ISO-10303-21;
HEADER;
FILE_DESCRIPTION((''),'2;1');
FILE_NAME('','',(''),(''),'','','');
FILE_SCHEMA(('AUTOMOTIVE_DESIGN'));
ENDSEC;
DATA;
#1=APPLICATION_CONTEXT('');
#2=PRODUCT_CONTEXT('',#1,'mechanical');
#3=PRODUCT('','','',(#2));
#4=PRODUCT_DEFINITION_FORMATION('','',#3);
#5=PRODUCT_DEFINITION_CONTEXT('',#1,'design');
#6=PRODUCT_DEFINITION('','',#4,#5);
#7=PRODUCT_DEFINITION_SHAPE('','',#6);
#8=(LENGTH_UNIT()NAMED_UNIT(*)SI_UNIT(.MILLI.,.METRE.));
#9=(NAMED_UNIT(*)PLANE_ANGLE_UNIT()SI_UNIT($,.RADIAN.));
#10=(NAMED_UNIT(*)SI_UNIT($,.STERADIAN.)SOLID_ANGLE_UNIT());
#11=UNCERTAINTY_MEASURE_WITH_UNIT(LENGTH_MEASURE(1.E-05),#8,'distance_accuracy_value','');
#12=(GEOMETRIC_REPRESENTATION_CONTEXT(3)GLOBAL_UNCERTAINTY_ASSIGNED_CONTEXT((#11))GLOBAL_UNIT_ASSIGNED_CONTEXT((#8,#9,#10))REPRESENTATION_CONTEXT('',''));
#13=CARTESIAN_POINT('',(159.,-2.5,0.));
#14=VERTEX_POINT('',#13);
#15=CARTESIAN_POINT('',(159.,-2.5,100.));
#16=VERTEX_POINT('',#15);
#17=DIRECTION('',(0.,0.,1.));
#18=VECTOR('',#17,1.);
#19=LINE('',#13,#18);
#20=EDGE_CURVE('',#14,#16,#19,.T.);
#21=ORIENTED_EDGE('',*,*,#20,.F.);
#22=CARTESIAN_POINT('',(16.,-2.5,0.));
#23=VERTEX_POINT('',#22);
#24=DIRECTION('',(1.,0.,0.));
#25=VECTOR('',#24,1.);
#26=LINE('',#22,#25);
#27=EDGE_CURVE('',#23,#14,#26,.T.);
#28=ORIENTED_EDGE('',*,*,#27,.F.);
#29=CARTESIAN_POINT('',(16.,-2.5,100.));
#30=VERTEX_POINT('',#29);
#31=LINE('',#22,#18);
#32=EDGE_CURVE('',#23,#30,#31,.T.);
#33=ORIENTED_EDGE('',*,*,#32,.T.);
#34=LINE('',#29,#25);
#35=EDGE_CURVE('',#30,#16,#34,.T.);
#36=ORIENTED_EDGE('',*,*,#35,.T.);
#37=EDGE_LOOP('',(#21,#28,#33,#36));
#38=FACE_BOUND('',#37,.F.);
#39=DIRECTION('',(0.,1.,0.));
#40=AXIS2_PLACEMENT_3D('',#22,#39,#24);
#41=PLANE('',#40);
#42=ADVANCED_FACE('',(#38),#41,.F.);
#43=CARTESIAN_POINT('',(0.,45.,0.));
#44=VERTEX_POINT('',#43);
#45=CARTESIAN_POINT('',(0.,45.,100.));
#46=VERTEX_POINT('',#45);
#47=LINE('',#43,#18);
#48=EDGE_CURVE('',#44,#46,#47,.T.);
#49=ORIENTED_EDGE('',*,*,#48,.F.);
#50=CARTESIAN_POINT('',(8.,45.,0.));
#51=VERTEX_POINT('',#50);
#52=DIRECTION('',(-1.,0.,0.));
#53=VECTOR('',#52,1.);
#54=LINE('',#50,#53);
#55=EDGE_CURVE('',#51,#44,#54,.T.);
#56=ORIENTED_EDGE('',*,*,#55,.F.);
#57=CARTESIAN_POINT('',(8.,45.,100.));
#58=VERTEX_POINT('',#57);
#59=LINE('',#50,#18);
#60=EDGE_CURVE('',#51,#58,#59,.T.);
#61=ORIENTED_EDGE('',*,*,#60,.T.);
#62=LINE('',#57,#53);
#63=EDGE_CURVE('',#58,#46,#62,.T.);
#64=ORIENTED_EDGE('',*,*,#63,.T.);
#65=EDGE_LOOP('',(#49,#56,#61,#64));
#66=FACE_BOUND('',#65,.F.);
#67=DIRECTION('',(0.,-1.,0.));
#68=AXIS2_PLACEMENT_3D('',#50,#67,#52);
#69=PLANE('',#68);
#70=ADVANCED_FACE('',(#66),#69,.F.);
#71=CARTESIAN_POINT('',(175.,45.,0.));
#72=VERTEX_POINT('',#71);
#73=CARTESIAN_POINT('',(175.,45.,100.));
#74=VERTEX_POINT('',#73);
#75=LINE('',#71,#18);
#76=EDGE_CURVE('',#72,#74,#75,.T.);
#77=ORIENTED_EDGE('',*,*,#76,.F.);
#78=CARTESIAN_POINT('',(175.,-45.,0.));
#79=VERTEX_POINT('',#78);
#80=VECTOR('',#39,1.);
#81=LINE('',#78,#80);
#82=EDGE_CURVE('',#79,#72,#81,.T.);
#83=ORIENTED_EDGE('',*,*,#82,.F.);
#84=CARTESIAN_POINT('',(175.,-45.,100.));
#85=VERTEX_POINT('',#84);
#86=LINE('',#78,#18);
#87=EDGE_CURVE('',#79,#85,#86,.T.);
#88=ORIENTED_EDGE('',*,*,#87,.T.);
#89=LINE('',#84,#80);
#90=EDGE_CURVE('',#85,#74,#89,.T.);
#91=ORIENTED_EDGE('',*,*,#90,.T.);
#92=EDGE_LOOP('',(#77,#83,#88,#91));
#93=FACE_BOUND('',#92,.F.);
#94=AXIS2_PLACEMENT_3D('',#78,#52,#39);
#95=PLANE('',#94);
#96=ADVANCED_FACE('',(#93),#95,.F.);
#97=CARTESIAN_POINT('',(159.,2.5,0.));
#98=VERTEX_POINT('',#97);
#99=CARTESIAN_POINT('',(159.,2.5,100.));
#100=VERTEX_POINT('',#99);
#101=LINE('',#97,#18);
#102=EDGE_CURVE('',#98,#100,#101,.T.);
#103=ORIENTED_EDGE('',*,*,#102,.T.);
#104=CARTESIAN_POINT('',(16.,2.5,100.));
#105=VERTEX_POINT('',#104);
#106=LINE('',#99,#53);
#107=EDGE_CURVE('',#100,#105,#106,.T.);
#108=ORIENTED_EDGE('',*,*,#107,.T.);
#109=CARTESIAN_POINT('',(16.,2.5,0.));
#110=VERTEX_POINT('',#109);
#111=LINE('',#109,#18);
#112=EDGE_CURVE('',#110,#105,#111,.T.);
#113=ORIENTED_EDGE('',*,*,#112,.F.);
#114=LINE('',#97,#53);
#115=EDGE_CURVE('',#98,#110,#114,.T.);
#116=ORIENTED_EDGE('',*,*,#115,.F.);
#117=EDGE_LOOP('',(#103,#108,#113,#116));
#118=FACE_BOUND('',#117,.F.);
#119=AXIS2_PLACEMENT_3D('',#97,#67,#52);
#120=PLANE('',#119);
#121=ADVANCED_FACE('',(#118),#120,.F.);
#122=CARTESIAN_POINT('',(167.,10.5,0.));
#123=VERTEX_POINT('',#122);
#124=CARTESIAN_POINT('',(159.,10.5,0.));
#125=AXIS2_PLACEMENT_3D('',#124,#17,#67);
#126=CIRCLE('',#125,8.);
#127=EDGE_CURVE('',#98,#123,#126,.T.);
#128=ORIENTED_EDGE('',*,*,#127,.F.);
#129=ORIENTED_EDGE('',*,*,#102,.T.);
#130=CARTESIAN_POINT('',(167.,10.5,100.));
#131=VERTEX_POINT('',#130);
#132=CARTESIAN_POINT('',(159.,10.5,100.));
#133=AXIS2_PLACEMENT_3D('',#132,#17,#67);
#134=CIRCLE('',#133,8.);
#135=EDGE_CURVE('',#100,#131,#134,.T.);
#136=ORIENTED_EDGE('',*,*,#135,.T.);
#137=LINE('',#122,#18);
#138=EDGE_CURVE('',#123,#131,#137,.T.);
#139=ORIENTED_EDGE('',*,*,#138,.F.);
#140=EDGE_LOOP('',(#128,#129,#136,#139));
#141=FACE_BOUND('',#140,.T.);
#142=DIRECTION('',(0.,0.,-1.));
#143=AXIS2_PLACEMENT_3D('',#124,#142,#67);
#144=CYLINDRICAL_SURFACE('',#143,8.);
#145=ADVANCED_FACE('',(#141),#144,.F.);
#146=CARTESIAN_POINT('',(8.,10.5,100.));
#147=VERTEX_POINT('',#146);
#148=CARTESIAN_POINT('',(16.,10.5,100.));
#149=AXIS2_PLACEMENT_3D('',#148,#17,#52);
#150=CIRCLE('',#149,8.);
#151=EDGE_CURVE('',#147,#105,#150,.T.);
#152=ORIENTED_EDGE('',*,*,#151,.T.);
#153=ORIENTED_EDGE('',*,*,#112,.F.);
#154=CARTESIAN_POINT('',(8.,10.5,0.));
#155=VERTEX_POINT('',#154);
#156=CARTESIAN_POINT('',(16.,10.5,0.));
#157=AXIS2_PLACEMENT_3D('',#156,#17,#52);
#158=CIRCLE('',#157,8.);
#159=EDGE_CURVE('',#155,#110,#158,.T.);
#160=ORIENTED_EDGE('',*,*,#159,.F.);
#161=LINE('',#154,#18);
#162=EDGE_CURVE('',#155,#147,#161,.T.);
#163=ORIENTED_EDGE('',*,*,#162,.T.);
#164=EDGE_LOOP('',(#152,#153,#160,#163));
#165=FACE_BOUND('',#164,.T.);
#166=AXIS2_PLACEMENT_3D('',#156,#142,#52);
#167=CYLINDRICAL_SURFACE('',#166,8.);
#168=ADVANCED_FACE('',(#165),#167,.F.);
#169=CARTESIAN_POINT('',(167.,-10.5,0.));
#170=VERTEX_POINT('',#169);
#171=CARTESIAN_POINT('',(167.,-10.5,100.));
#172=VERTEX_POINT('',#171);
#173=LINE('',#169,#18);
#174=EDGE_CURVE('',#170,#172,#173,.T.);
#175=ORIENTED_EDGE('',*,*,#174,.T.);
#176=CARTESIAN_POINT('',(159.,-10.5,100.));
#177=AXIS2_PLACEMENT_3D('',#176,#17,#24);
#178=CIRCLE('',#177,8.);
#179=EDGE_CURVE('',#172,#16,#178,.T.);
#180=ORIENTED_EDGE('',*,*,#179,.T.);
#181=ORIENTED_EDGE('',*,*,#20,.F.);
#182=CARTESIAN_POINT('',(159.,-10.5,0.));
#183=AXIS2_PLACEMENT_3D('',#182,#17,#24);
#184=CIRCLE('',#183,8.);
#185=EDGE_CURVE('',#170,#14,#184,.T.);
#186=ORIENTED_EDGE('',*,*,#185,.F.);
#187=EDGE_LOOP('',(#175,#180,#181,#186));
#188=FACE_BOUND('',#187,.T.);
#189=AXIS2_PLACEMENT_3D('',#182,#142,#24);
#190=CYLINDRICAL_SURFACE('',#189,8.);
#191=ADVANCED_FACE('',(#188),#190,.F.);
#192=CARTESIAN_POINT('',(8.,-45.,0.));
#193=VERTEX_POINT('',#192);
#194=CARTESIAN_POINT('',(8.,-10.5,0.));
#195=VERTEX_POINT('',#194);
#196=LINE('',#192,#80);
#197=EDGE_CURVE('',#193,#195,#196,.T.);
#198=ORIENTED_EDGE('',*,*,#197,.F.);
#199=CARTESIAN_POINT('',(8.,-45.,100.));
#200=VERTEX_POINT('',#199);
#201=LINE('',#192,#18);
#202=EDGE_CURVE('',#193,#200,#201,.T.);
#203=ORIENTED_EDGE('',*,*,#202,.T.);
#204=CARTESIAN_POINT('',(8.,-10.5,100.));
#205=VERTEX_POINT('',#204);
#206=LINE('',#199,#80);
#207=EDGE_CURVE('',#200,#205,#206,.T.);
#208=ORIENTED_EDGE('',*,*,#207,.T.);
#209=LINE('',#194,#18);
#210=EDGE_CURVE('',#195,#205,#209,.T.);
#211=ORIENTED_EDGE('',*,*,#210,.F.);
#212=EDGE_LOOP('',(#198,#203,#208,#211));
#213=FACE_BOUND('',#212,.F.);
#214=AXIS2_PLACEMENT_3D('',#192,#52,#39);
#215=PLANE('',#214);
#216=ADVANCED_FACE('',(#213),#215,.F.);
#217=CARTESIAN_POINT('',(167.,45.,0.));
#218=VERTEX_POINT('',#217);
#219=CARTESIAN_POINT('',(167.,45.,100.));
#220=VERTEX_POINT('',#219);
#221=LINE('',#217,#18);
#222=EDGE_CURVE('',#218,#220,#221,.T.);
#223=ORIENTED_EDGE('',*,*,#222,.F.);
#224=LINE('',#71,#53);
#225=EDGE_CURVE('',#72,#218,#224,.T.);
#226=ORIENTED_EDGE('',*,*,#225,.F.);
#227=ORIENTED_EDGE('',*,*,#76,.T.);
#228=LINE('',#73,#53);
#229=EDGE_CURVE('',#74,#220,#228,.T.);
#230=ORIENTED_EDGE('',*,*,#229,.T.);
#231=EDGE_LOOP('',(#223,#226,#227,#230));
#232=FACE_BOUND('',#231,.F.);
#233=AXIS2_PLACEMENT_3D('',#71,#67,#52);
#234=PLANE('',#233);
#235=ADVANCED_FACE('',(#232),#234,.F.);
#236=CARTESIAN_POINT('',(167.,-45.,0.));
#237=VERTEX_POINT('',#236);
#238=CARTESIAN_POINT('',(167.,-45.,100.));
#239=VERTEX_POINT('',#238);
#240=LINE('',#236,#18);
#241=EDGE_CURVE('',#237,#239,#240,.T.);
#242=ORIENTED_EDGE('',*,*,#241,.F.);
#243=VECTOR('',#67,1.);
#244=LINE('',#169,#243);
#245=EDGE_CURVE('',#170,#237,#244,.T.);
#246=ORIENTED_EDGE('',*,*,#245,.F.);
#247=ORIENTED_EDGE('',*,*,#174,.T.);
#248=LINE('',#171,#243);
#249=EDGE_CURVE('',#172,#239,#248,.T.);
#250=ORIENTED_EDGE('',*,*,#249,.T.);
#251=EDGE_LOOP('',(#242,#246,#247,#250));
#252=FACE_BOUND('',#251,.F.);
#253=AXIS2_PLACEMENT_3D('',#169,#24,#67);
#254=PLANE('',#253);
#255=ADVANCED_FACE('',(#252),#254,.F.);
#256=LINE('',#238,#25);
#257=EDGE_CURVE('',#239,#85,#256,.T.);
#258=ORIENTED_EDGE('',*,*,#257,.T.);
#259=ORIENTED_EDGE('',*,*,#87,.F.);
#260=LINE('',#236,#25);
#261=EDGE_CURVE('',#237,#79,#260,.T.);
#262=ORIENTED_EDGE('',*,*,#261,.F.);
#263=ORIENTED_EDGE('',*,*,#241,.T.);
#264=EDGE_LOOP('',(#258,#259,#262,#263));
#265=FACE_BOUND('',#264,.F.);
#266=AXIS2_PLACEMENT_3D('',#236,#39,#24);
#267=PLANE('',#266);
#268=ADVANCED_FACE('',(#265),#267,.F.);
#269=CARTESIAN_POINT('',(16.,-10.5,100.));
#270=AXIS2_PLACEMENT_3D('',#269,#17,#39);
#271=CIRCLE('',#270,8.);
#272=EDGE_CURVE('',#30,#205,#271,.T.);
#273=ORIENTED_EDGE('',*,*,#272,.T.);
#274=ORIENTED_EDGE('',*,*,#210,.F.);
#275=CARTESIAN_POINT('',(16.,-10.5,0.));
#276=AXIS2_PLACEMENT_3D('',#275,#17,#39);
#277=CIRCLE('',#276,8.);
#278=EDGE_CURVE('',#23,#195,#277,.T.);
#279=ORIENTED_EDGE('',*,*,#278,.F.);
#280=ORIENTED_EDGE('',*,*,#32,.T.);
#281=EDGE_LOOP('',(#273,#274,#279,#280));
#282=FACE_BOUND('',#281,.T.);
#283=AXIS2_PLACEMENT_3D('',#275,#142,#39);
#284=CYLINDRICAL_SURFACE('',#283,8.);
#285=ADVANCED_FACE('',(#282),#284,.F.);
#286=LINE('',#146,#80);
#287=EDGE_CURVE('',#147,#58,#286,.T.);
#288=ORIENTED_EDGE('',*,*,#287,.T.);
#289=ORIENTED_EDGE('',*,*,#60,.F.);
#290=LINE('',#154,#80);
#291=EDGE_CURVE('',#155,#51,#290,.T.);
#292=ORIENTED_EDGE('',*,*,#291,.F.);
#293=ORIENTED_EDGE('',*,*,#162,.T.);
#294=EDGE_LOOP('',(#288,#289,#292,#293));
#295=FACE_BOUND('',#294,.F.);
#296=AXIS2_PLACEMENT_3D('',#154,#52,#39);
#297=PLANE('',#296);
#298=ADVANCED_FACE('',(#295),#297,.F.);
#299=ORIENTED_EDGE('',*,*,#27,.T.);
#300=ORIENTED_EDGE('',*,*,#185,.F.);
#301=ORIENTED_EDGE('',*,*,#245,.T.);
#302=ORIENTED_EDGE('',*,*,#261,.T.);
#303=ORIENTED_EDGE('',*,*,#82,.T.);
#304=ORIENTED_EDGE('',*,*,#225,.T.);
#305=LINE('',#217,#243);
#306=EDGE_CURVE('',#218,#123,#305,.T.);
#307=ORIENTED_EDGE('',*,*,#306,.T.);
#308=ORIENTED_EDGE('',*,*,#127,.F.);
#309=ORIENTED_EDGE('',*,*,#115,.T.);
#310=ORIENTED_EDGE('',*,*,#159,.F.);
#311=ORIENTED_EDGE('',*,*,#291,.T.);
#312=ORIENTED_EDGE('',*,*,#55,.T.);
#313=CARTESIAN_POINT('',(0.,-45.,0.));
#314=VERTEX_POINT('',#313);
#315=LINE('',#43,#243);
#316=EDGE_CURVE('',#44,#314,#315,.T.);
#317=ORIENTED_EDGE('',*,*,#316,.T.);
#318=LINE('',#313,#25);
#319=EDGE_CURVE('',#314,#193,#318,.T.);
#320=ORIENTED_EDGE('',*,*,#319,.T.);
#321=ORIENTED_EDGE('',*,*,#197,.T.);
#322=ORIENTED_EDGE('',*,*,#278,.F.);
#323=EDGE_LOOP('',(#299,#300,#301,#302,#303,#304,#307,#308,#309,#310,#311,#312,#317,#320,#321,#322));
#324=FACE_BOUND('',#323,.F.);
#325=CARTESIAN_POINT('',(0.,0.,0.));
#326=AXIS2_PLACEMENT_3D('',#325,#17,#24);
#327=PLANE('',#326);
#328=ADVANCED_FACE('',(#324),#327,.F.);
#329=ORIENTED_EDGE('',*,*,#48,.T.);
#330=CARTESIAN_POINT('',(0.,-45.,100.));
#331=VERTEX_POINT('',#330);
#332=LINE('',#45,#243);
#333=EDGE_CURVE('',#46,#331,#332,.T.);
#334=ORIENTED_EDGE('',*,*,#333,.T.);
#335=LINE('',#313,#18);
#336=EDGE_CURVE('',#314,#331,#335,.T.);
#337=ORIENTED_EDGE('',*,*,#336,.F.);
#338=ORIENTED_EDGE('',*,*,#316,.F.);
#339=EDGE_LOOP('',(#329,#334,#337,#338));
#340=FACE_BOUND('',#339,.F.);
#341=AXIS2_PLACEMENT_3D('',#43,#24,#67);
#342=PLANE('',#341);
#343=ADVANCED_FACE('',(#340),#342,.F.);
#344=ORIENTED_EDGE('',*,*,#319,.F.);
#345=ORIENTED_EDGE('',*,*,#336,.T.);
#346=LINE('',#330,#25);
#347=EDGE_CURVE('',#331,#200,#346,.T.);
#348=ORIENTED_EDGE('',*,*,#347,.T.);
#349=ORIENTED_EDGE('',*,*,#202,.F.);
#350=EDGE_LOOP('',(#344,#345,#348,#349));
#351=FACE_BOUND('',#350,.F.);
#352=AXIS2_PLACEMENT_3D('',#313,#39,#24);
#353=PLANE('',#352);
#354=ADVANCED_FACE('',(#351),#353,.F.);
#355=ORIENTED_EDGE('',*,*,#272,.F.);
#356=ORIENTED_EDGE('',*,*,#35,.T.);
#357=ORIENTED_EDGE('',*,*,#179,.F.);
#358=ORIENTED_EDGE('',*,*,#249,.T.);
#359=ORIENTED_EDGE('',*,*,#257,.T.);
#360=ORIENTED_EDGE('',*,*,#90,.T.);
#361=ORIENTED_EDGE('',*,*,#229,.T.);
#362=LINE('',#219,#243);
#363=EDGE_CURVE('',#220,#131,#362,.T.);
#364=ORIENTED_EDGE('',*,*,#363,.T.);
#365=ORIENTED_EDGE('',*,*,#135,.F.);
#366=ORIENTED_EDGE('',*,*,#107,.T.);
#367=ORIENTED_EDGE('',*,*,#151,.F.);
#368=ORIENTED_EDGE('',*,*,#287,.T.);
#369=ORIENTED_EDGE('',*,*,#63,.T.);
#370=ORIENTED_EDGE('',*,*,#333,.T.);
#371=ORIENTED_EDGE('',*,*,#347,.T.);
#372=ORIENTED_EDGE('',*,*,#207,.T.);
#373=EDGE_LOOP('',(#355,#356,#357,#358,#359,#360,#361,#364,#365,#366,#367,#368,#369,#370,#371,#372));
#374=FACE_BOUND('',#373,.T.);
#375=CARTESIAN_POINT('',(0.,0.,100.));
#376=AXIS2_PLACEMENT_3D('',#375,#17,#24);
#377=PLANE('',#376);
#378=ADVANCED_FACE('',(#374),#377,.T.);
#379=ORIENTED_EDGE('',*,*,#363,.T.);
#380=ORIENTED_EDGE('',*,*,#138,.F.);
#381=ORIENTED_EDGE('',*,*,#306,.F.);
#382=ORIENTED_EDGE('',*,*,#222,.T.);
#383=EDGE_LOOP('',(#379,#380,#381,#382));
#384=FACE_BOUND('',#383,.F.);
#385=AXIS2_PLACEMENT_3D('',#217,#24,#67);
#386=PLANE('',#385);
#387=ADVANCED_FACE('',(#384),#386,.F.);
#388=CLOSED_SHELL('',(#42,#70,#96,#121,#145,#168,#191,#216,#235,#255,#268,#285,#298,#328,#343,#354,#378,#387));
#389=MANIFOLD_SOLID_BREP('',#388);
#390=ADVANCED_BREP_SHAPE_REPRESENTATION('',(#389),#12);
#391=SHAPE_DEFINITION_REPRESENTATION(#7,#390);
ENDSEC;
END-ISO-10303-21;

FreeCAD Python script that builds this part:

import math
import FreeCAD as App
import Part
import Sketcher
Q = App.Units.Quantity

doc = App.newDocument("Part")
body = doc.addObject("PartDesign::Body", "Body")

sketch1 = doc.addObject("Sketcher::SketchObject", "Sketch")
body.addObject(sketch1)
sketch1.AttachmentSupport = (doc.XY_Plane, [""])
sketch1.MapMode = "FlatFace"
sketch1.addGeometry([
    Part.ArcOfCircle(Part.Circle(App.Vector(159, 10, 0), App.Vector(0, 0, 1), 8), math.radians(-90), math.radians(0)),
    Part.LineSegment(App.Vector(159, 2, 0), App.Vector(16, 2, 0)),
    Part.ArcOfCircle(Part.Circle(App.Vector(16, 10, 0), App.Vector(0, 0, 1), 8), math.radians(180), math.radians(270)),
    Part.LineSegment(App.Vector(8, 10, 0), App.Vector(8, 45, 0)),
    Part.LineSegment(App.Vector(8, 45, 0), App.Vector(0, 45, 0)),
    Part.LineSegment(App.Vector(0, 45, 0), App.Vector(0, -45, 0)),
    Part.LineSegment(App.Vector(0, -45, 0), App.Vector(8, -45, 0)),
    Part.LineSegment(App.Vector(8, -45, 0), App.Vector(8, -10, 0)),
    Part.ArcOfCircle(Part.Circle(App.Vector(16, -10, 0), App.Vector(0, 0, 1), 8), math.radians(90), math.radians(180)),
    Part.LineSegment(App.Vector(16, -2, 0), App.Vector(159, -2, 0)),
    Part.ArcOfCircle(Part.Circle(App.Vector(159, -10, 0), App.Vector(0, 0, 1), 8), math.radians(0), math.radians(90)),
    Part.LineSegment(App.Vector(167, -10, 0), App.Vector(167, -45, 0)),
    Part.LineSegment(App.Vector(167, -45, 0), App.Vector(175, -45, 0)),
    Part.LineSegment(App.Vector(175, -45, 0), App.Vector(175, 45, 0)),
    Part.LineSegment(App.Vector(175, 45, 0), App.Vector(167, 45, 0)),
    Part.LineSegment(App.Vector(167, 45, 0), App.Vector(167, 10, 0)),
], False)
sketch1.addConstraint([
    Sketcher.Constraint("Tangent", 0, 1, 1, 1),
    Sketcher.Constraint("Tangent", 1, 2, 2, 2),
    Sketcher.Constraint("Tangent", 2, 1, 3, 1),
    Sketcher.Constraint("Coincident", 3, 2, 4, 1),
    Sketcher.Constraint("Coincident", 4, 2, 5, 1),
    Sketcher.Constraint("Coincident", 5, 2, 6, 1),
    Sketcher.Constraint("Coincident", 6, 2, 7, 1),
    Sketcher.Constraint("Tangent", 7, 2, 8, 2),
    Sketcher.Constraint("Tangent", 8, 1, 9, 1),
    Sketcher.Constraint("Tangent", 9, 2, 10, 2),
    Sketcher.Constraint("Tangent", 10, 1, 11, 1),
    Sketcher.Constraint("Coincident", 11, 2, 12, 1),
    Sketcher.Constraint("Coincident", 12, 2, 13, 1),
    Sketcher.Constraint("Coincident", 13, 2, 14, 1),
    Sketcher.Constraint("Coincident", 14, 2, 15, 1),
    Sketcher.Constraint("Tangent", 15, 2, 0, 2),
    Sketcher.Constraint("Horizontal", 1),
    Sketcher.Constraint("Vertical", 3),
    Sketcher.Constraint("Horizontal", 4),
    Sketcher.Constraint("Vertical", 5),
    Sketcher.Constraint("Horizontal", 6),
    Sketcher.Constraint("Vertical", 7),
    Sketcher.Constraint("Horizontal", 9),
    Sketcher.Constraint("Vertical", 11),
    Sketcher.Constraint("Horizontal", 12),
    Sketcher.Constraint("Vertical", 13),
    Sketcher.Constraint("Horizontal", 14),
    Sketcher.Constraint("Vertical", 15),
    Sketcher.Constraint("Equal", 0, 2),
    Sketcher.Constraint("Equal", 2, 8),
    Sketcher.Constraint("Equal", 8, 10),
    Sketcher.Constraint("Symmetric", 4, 2, 5, 2, -1, 1),
    Sketcher.Constraint("Symmetric", 2, 3, 8, 3, -1),
    Sketcher.Constraint("Symmetric", 11, 2, 14, 2, -1),
    Sketcher.Constraint("Horizontal", 6, 2, 11, 2),
    Sketcher.Constraint("Equal", 6, 12),
    Sketcher.Constraint("Radius", 0, Q("8 mm")),
    Sketcher.Constraint("DistanceX", 1, 2, 1, 1, Q("143 mm")),
    Sketcher.Constraint("DistanceX", 4, 2, 4, 1, Q("8 mm")),
    Sketcher.Constraint("DistanceY", 5, 2, 5, 1, Q("90 mm")),
    Sketcher.Constraint("DistanceY", 3, 1, 3, 2, Q("34.5 mm")),
])
pad1 = doc.addObject("PartDesign::Pad", "Pad")
body.addObject(pad1)
pad1.Profile = sketch1
pad1.Length = 100

doc.recompute()
